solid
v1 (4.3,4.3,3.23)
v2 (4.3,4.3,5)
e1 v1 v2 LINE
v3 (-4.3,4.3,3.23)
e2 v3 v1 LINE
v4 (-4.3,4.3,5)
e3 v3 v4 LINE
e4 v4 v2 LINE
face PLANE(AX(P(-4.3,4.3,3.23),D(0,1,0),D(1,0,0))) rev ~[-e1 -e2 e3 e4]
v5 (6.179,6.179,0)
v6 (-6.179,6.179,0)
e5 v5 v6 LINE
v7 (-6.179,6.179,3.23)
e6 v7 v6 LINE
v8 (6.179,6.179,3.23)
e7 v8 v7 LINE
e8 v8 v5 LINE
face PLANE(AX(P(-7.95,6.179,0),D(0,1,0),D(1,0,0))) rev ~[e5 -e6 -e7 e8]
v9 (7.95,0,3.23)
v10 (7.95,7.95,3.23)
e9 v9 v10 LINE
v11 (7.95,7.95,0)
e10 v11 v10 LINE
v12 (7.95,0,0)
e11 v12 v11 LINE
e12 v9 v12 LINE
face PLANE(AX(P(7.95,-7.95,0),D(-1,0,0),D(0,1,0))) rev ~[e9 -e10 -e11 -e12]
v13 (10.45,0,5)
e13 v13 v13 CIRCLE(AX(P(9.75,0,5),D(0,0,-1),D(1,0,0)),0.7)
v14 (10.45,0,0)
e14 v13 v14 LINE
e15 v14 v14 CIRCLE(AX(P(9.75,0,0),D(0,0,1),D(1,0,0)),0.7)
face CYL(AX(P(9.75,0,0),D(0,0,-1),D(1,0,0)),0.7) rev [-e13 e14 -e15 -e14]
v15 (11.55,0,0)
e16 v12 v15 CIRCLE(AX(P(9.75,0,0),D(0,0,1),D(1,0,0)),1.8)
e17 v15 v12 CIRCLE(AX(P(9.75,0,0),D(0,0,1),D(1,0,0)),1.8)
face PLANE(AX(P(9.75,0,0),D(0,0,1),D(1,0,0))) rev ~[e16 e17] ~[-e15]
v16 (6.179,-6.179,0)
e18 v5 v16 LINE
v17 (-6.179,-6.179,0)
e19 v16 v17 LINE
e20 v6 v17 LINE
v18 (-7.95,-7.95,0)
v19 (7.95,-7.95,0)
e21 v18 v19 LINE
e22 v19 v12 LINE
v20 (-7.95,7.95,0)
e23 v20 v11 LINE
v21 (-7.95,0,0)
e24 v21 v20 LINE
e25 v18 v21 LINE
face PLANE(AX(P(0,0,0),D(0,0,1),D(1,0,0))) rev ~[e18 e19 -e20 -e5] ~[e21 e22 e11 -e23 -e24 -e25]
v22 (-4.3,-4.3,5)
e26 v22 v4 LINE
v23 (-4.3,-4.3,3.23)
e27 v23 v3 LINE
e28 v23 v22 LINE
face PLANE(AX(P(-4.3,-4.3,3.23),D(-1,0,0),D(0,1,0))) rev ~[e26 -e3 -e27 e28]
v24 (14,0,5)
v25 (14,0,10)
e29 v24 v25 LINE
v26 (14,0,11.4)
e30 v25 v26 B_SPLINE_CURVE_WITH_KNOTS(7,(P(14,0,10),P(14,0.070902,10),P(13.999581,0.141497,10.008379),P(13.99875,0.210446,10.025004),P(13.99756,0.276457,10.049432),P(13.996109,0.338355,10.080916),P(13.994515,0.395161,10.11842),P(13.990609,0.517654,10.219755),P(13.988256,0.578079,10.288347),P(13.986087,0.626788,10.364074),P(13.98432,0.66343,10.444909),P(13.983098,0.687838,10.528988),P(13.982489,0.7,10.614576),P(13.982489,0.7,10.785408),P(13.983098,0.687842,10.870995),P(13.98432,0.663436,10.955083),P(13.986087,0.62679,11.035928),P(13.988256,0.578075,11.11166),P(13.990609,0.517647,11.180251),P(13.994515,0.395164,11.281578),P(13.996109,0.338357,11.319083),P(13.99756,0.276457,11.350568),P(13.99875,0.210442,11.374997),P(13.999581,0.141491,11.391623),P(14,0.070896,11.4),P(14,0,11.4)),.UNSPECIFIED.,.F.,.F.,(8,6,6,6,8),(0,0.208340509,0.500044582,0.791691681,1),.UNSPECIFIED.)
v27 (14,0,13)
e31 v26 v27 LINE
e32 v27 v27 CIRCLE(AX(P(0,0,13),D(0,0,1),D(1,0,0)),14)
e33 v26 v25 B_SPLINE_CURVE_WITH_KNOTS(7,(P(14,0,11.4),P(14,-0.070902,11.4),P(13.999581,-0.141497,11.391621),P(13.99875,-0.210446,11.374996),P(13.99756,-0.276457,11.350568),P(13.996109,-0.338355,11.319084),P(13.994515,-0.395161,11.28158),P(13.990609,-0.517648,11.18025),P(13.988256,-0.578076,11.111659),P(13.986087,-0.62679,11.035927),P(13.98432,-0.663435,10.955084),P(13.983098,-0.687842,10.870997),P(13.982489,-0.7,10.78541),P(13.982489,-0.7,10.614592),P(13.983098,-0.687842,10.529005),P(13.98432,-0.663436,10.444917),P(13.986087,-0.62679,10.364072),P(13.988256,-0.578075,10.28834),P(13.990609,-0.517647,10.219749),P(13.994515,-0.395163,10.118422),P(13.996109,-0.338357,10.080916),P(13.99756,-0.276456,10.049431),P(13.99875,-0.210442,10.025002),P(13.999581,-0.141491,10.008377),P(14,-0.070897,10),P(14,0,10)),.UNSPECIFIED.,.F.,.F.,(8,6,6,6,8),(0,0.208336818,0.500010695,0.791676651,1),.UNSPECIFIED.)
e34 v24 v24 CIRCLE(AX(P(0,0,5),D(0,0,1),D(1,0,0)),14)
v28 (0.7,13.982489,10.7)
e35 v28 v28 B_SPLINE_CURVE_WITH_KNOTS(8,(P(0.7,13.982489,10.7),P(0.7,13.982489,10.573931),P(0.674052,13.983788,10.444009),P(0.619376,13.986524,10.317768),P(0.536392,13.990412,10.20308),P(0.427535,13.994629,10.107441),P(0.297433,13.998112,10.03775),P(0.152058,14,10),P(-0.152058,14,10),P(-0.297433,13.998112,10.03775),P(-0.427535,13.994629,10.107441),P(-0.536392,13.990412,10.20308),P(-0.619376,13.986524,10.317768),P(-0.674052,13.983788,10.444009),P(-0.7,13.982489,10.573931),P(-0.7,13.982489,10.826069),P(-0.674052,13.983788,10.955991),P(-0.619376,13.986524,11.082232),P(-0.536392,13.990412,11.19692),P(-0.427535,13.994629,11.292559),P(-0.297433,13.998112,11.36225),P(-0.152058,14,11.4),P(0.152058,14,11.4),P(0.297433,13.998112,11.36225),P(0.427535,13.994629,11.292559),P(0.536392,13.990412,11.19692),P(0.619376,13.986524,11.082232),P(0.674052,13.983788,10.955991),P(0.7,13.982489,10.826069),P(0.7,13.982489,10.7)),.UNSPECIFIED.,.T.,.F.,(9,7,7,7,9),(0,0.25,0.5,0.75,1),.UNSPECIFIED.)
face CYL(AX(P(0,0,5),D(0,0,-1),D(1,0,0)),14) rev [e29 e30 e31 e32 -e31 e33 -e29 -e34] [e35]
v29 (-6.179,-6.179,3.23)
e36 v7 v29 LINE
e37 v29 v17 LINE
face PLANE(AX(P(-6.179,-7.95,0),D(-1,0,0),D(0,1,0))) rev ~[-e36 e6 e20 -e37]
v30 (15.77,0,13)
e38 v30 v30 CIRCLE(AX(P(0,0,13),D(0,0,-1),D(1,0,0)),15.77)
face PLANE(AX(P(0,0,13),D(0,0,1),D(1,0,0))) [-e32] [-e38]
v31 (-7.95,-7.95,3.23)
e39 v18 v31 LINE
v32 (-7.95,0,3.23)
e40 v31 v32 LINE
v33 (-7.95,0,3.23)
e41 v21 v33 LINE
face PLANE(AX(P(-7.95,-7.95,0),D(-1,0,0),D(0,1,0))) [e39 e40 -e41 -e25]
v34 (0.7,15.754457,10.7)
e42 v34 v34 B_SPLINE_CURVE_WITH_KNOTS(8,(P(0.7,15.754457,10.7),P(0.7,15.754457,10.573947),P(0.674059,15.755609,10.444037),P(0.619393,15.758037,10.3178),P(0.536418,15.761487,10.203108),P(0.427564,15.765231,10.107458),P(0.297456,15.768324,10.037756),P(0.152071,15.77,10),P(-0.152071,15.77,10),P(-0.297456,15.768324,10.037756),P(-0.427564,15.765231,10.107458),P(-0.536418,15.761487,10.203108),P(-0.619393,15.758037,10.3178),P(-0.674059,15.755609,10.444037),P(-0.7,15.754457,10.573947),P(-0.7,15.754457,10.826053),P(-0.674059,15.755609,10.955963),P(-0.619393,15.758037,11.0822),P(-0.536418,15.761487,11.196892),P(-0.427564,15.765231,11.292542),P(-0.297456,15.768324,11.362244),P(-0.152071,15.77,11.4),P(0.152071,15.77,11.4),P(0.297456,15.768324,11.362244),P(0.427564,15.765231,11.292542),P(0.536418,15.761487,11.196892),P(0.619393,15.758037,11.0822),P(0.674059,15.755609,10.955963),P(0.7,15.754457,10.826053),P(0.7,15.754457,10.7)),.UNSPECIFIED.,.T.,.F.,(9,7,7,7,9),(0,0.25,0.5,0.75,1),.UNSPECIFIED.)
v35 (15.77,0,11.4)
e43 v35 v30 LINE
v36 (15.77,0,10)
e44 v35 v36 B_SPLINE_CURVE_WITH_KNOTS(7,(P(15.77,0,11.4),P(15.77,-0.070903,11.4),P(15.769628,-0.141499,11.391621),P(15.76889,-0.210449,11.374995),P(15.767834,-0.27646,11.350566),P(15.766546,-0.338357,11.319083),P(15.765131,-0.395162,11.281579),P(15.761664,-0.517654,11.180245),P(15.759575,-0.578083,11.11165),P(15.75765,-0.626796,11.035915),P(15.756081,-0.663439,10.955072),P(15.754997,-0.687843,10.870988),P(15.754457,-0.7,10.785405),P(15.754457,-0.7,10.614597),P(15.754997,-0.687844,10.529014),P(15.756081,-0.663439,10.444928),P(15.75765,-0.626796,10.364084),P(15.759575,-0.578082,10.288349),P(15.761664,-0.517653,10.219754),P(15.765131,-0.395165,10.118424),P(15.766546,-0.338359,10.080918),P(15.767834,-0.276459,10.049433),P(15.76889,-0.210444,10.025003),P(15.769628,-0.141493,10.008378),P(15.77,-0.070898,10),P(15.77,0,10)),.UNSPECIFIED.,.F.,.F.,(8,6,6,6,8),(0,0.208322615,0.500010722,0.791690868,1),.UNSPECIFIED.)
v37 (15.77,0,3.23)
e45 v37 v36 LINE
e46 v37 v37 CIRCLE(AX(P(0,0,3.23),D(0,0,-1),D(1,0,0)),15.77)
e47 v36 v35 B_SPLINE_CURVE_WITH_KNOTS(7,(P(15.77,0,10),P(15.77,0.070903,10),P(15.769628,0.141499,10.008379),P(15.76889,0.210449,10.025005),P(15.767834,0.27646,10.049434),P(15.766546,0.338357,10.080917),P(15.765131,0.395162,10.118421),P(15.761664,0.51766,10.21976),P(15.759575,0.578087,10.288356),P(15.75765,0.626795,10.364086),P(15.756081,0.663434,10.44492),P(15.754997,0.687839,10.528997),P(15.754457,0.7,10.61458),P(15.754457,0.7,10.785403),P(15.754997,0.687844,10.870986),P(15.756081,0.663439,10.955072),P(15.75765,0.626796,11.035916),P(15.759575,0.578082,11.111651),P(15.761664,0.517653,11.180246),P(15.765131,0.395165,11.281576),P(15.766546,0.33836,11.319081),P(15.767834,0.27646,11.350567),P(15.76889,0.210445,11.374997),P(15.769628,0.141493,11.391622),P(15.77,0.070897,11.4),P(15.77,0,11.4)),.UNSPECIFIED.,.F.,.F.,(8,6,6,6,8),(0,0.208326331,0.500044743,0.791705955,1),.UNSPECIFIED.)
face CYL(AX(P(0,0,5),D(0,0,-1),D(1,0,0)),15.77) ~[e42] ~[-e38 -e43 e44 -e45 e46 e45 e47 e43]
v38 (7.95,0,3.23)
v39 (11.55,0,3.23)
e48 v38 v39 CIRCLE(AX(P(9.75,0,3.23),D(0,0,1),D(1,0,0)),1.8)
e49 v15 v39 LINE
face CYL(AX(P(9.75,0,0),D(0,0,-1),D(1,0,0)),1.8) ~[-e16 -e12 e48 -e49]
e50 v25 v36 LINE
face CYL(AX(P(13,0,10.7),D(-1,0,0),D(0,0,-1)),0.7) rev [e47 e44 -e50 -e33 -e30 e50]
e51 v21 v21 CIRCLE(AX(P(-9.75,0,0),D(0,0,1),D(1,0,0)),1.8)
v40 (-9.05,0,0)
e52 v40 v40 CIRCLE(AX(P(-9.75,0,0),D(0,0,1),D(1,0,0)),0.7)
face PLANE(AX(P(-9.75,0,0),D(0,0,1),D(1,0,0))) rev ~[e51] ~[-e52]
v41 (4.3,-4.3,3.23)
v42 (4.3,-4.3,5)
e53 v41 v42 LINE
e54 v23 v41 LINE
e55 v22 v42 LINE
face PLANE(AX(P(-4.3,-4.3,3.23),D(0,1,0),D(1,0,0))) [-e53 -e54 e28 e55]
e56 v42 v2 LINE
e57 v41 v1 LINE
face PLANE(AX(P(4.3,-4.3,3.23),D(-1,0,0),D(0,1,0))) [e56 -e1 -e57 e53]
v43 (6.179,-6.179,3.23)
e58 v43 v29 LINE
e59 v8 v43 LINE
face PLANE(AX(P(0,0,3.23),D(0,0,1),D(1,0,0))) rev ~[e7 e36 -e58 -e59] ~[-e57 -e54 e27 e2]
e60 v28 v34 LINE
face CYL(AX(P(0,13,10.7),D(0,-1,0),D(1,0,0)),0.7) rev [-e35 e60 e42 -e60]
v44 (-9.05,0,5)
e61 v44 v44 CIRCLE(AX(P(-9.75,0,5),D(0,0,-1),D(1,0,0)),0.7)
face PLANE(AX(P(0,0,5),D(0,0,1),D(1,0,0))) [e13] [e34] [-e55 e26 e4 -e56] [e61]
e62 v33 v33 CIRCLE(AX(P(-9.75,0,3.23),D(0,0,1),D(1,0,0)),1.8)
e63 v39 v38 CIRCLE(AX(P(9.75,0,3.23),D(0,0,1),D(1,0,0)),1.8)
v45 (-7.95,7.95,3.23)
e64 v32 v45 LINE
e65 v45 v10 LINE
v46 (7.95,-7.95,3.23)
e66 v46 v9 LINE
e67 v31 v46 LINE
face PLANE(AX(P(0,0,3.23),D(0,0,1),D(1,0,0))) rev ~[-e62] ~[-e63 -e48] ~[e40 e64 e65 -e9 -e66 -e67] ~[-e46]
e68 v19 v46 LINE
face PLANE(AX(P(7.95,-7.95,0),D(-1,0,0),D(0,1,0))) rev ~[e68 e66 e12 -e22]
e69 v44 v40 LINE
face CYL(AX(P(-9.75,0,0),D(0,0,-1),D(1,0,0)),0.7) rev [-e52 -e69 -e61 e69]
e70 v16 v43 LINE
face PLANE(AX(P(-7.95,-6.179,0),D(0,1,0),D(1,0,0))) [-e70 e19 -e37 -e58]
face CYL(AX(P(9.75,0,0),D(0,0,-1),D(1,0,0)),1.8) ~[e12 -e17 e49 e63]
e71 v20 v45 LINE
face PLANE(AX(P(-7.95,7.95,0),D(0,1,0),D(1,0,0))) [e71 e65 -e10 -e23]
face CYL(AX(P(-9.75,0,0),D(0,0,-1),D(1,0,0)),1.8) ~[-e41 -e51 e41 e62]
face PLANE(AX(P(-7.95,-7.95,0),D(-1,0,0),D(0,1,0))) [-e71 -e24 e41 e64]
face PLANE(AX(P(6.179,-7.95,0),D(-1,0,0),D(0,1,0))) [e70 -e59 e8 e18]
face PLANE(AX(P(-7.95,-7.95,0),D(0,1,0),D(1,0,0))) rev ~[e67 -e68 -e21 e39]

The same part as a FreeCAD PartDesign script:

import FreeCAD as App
import Part
import Sketcher
from FreeCAD import Vector


def faces_at(feature, points):
    """Names of the faces that lie closest to the given points."""
    faces = feature.Shape.Faces
    near = lambda p: min(range(len(faces)), key=lambda i: faces[i].distToShape(Part.Vertex(*p))[0])
    return sorted({f"Face{near(p) + 1}" for p in points})

doc = App.newDocument("Part")
body = doc.addObject("PartDesign::Body", "Body")

# Sketch on XY plane
sketch1 = body.newObject("Sketcher::SketchObject", "Sketch")
sketch1.AttachmentSupport = (doc.getObject("XY_Plane"), [""])
sketch1.MapMode = "FlatFace"
sketch1.addGeometry(Part.Circle(Vector(0, 0, 0), Vector(0, 0, 1), 1.8), False)
sketch1.addConstraint([
    Sketcher.Constraint("Coincident", 0, 3, -1, 1),
    Sketcher.Constraint("Diameter", 0, 3.6),
])
pad1 = body.newObject("PartDesign::Pad", "Pad")
pad1.Profile = sketch1
pad1.Length = 3.23
doc.recompute()

thickness = body.newObject("PartDesign::Thickness", "Thickness")
thickness.Base = (pad1, faces_at(pad1, [(0, 0, 3.23), (0, 0, 0)]))
thickness.Value = 1.1
thickness.Reversed = True
thickness.Join = "Arc"
body2 = doc.addObject("PartDesign::Body", "Body001")
doc.recompute()

body.Placement = App.Placement(Vector(9.75, 0, 0), App.Rotation(Vector(0, 0, 1), 0))
boolean = body2.newObject("PartDesign::Boolean", "Boolean")
boolean.Type = "Fuse"
boolean.addObjects([body])
body3 = doc.addObject("PartDesign::Body", "Body002")

# Sketch on XY plane
sketch2 = body3.newObject("Sketcher::SketchObject", "Sketch001")
sketch2.AttachmentSupport = (doc.getObject("XY_Plane002"), [""])
sketch2.MapMode = "FlatFace"
sketch2.addGeometry(Part.Circle(Vector(0, 0, 0), Vector(0, 0, 1), 1.8), False)
sketch2.addConstraint([
    Sketcher.Constraint("Coincident", 0, 3, -1, 1),
    Sketcher.Constraint("Diameter", 0, 3.6),
])
pad2 = body3.newObject("PartDesign::Pad", "Pad001")
pad2.Profile = sketch2
pad2.Length = 3.23
doc.recompute()

thickness2 = body3.newObject("PartDesign::Thickness", "Thickness001")
thickness2.Base = (pad2, faces_at(pad2, [(0, 0, 3.23), (0, 0, 0)]))
thickness2.Value = 1.1
thickness2.Reversed = True
thickness2.Join = "Arc"
body4 = doc.addObject("PartDesign::Body", "Body003")
doc.recompute()

body3.Placement = App.Placement(Vector(-9.75, 0, 0), App.Rotation(Vector(0, 0, 1), 0))
boolean2 = body4.newObject("PartDesign::Boolean", "Boolean001")
boolean2.Type = "Fuse"
boolean2.addObjects([body3])
body5 = doc.addObject("PartDesign::Body", "Body004")

# Sketch on XY plane
sketch3 = body5.newObject("Sketcher::SketchObject", "Sketch002")
sketch3.AttachmentSupport = (doc.getObject("XY_Plane004"), [""])
sketch3.MapMode = "FlatFace"
sketch3.addGeometry(Part.Circle(Vector(0, 0, 0), Vector(0, 0, 1), 0.7), False)
sketch3.addConstraint([
    Sketcher.Constraint("Coincident", 0, 3, -1, 1),
    Sketcher.Constraint("Diameter", 0, 1.4),
])
pad3 = body5.newObject("PartDesign::Pad", "Pad002")
pad3.Profile = sketch3
pad3.Length = 3
body6 = doc.addObject("PartDesign::Body", "Body005")
doc.recompute()

body5.Placement = App.Placement(Vector(0, 0, 0), App.Rotation(Vector(1, 0, 0), 270))
boolean3 = body6.newObject("PartDesign::Boolean", "Boolean002")
boolean3.Type = "Fuse"
boolean3.addObjects([body5])
body7 = doc.addObject("PartDesign::Body", "Body006")
doc.recompute()

body6.Placement = App.Placement(Vector(0, 13, 10.7), App.Rotation(Vector(0, 0, 1), 0))
boolean4 = body7.newObject("PartDesign::Boolean", "Boolean003")
boolean4.Type = "Fuse"
boolean4.addObjects([body6])
body8 = doc.addObject("PartDesign::Body", "Body007")

# Sketch on XY plane
sketch4 = body8.newObject("Sketcher::SketchObject", "Sketch003")
sketch4.AttachmentSupport = (doc.getObject("XY_Plane007"), [""])
sketch4.MapMode = "FlatFace"
sketch4.addGeometry(Part.Circle(Vector(0, 0, 0), Vector(0, 0, 1), 0.7), False)
sketch4.addConstraint([
    Sketcher.Constraint("Coincident", 0, 3, -1, 1),
    Sketcher.Constraint("Diameter", 0, 1.4),
])
pad4 = body8.newObject("PartDesign::Pad", "Pad003")
pad4.Profile = sketch4
pad4.Length = 3
body9 = doc.addObject("PartDesign::Body", "Body008")
doc.recompute()

body8.Placement = App.Placement(Vector(0, 0, 0), App.Rotation(Vector(0, 1, 0), 90))
boolean5 = body9.newObject("PartDesign::Boolean", "Boolean004")
boolean5.Type = "Fuse"
boolean5.addObjects([body8])
body10 = doc.addObject("PartDesign::Body", "Body009")
doc.recompute()

body9.Placement = App.Placement(Vector(13, 0, 10.7), App.Rotation(Vector(0, 0, 1), 0))
boolean6 = body10.newObject("PartDesign::Boolean", "Boolean005")
boolean6.Type = "Fuse"
boolean6.addObjects([body9])
body11 = doc.addObject("PartDesign::Body", "Body010")

# Sketch on XY plane
sketch5 = body11.newObject("Sketcher::SketchObject", "Sketch004")
sketch5.AttachmentSupport = (doc.getObject("XY_Plane010"), [""])
sketch5.MapMode = "FlatFace"
sketch5.addGeometry(Part.Circle(Vector(-9.8, 0, 0), Vector(0, 0, 1), 0.7), False)
sketch5.addConstraint([
    Sketcher.Constraint("PointOnObject", 0, 3, -1),
    Sketcher.Constraint("Diameter", 0, 1.4),
    Sketcher.Constraint("DistanceX", 0, 3, -1, 1, 9.75),
])
pad5 = body11.newObject("PartDesign::Pad", "Pad004")
pad5.Profile = sketch5
pad5.Length = 10
body12 = doc.addObject("PartDesign::Body", "Body011")

# Sketch on XY plane
sketch6 = body12.newObject("Sketcher::SketchObject", "Sketch005")
sketch6.AttachmentSupport = (doc.getObject("XY_Plane011"), [""])
sketch6.MapMode = "FlatFace"
sketch6.addGeometry(Part.Circle(Vector(9.8, 0, 0), Vector(0, 0, 1), 0.7), False)
sketch6.addConstraint([
    Sketcher.Constraint("PointOnObject", 0, 3, -1),
    Sketcher.Constraint("Diameter", 0, 1.4),
    Sketcher.Constraint("DistanceX", -1, 1, 0, 3, 9.75),
])
pad6 = body12.newObject("PartDesign::Pad", "Pad005")
pad6.Profile = sketch6
pad6.Length = 10
body13 = doc.addObject("PartDesign::Body", "Body012")

# Sketch on XY plane
sketch7 = body13.newObject("Sketcher::SketchObject", "Sketch006")
sketch7.AttachmentSupport = (doc.getObject("XY_Plane012"), [""])
sketch7.MapMode = "FlatFace"
sketch7.AttachmentOffset = App.Placement(Vector(0, 0, 3.23), App.Rotation())
sketch7.addGeometry([
    Part.LineSegment(Vector(-4, 4, 0), Vector(-4, -4, 0)),
    Part.LineSegment(Vector(-4, -4, 0), Vector(4, -4, 0)),
    Part.LineSegment(Vector(4, -4, 0), Vector(4, 4, 0)),
    Part.LineSegment(Vector(4, 4, 0), Vector(-4, 4, 0)),
], False)
sketch7.addConstraint([
    Sketcher.Constraint("Coincident", 0, 2, 1, 1),
    Sketcher.Constraint("Coincident", 1, 2, 2, 1),
    Sketcher.Constraint("Coincident", 2, 2, 3, 1),
    Sketcher.Constraint("Coincident", 3, 2, 0, 1),
    Sketcher.Constraint("Vertical", 0),
    Sketcher.Constraint("Horizontal", 1),
    Sketcher.Constraint("Vertical", 2),
    Sketcher.Constraint("Horizontal", 3),
    Sketcher.Constraint("Symmetric", 0, 2, 2, 2, -1, 1),
    Sketcher.Constraint("Equal", 3, 0),
    Sketcher.Constraint("DistanceX", 1, 1, 1, 2, 8.6),
])
pad7 = body13.newObject("PartDesign::Pad", "Pad006")
pad7.Profile = sketch7
pad7.Length = 1.77
body14 = doc.addObject("PartDesign::Body", "Body013")

# Sketch on XY plane
sketch8 = body14.newObject("Sketcher::SketchObject", "Sketch007")
sketch8.AttachmentSupport = (doc.getObject("XY_Plane013"), [""])
sketch8.MapMode = "FlatFace"
sketch8.AttachmentOffset = App.Placement(Vector(0, 0, 5), App.Rotation())
sketch8.addGeometry(Part.Circle(Vector(0, 0, 0), Vector(0, 0, 1), 14), False)
sketch8.addConstraint([
    Sketcher.Constraint("Coincident", 0, 3, -1, 1),
    Sketcher.Constraint("Diameter", 0, 28.0),
])
pad8 = body14.newObject("PartDesign::Pad", "Pad007")
pad8.Profile = sketch8
pad8.Length = 8
doc.recompute()

thickness3 = body14.newObject("PartDesign::Thickness", "Thickness002")
thickness3.Base = (pad8, faces_at(pad8, [(0, 0, 13)]))
thickness3.Value = 1.77
thickness3.Reversed = False
thickness3.Join = "Intersection"
doc.recompute()

boolean7 = body14.newObject("PartDesign::Boolean", "Boolean006")
boolean7.Type = "Cut"
boolean7.addObjects([body13])
doc.recompute()

boolean8 = body14.newObject("PartDesign::Boolean", "Boolean007")
boolean8.Type = "Cut"
boolean8.addObjects([body12])
doc.recompute()

boolean9 = body14.newObject("PartDesign::Boolean", "Boolean008")
boolean9.Type = "Cut"
boolean9.addObjects([body11])
doc.recompute()

boolean10 = body14.newObject("PartDesign::Boolean", "Boolean009")
boolean10.Type = "Cut"
boolean10.addObjects([body10])
doc.recompute()

boolean11 = body14.newObject("PartDesign::Boolean", "Boolean010")
boolean11.Type = "Cut"
boolean11.addObjects([body7])
body15 = doc.addObject("PartDesign::Body", "Body014")
body15.AllowCompound = True

# Sketch on XY plane
sketch9 = body15.newObject("Sketcher::SketchObject", "Sketch008")
sketch9.AttachmentSupport = (doc.getObject("XY_Plane014"), [""])
sketch9.MapMode = "FlatFace"
sketch9.addGeometry([
    Part.LineSegment(Vector(-8, 8, 0), Vector(-8, -8, 0)),
    Part.LineSegment(Vector(-8, -8, 0), Vector(8, -8, 0)),
    Part.LineSegment(Vector(8, -8, 0), Vector(8, 8, 0)),
    Part.LineSegment(Vector(8, 8, 0), Vector(-8, 8, 0)),
], False)
sketch9.addConstraint([
    Sketcher.Constraint("Coincident", 0, 2, 1, 1),
    Sketcher.Constraint("Coincident", 1, 2, 2, 1),
    Sketcher.Constraint("Coincident", 2, 2, 3, 1),
    Sketcher.Constraint("Coincident", 3, 2, 0, 1),
    Sketcher.Constraint("Vertical", 0),
    Sketcher.Constraint("Horizontal", 1),
    Sketcher.Constraint("Vertical", 2),
    Sketcher.Constraint("Horizontal", 3),
    Sketcher.Constraint("Symmetric", 0, 2, 2, 2, -1, 1),
    Sketcher.Constraint("Equal", 3, 0),
    Sketcher.Constraint("DistanceX", 1, 1, 1, 2, 15.9),
])
pad9 = body15.newObject("PartDesign::Pad", "Pad008")
pad9.Profile = sketch9
pad9.Length = 3.23
doc.recompute()

thickness4 = body15.newObject("PartDesign::Thickness", "Thickness003")
thickness4.Base = (pad9, faces_at(pad9, [(0, 0, 3.23), (0, 0, 0)]))
thickness4.Value = 1.771
thickness4.Reversed = True
thickness4.Join = "Intersection"
doc.recompute()

boolean12 = body15.newObject("PartDesign::Boolean", "Boolean011")
boolean12.Type = "Fuse"
boolean12.addObjects([body2])
doc.recompute()

boolean13 = body15.newObject("PartDesign::Boolean", "Boolean012")
boolean13.Type = "Fuse"
boolean13.addObjects([body4])
doc.recompute()

boolean14 = body15.newObject("PartDesign::Boolean", "Boolean013")
boolean14.Type = "Fuse"
boolean14.addObjects([body14])

doc.recompute()
